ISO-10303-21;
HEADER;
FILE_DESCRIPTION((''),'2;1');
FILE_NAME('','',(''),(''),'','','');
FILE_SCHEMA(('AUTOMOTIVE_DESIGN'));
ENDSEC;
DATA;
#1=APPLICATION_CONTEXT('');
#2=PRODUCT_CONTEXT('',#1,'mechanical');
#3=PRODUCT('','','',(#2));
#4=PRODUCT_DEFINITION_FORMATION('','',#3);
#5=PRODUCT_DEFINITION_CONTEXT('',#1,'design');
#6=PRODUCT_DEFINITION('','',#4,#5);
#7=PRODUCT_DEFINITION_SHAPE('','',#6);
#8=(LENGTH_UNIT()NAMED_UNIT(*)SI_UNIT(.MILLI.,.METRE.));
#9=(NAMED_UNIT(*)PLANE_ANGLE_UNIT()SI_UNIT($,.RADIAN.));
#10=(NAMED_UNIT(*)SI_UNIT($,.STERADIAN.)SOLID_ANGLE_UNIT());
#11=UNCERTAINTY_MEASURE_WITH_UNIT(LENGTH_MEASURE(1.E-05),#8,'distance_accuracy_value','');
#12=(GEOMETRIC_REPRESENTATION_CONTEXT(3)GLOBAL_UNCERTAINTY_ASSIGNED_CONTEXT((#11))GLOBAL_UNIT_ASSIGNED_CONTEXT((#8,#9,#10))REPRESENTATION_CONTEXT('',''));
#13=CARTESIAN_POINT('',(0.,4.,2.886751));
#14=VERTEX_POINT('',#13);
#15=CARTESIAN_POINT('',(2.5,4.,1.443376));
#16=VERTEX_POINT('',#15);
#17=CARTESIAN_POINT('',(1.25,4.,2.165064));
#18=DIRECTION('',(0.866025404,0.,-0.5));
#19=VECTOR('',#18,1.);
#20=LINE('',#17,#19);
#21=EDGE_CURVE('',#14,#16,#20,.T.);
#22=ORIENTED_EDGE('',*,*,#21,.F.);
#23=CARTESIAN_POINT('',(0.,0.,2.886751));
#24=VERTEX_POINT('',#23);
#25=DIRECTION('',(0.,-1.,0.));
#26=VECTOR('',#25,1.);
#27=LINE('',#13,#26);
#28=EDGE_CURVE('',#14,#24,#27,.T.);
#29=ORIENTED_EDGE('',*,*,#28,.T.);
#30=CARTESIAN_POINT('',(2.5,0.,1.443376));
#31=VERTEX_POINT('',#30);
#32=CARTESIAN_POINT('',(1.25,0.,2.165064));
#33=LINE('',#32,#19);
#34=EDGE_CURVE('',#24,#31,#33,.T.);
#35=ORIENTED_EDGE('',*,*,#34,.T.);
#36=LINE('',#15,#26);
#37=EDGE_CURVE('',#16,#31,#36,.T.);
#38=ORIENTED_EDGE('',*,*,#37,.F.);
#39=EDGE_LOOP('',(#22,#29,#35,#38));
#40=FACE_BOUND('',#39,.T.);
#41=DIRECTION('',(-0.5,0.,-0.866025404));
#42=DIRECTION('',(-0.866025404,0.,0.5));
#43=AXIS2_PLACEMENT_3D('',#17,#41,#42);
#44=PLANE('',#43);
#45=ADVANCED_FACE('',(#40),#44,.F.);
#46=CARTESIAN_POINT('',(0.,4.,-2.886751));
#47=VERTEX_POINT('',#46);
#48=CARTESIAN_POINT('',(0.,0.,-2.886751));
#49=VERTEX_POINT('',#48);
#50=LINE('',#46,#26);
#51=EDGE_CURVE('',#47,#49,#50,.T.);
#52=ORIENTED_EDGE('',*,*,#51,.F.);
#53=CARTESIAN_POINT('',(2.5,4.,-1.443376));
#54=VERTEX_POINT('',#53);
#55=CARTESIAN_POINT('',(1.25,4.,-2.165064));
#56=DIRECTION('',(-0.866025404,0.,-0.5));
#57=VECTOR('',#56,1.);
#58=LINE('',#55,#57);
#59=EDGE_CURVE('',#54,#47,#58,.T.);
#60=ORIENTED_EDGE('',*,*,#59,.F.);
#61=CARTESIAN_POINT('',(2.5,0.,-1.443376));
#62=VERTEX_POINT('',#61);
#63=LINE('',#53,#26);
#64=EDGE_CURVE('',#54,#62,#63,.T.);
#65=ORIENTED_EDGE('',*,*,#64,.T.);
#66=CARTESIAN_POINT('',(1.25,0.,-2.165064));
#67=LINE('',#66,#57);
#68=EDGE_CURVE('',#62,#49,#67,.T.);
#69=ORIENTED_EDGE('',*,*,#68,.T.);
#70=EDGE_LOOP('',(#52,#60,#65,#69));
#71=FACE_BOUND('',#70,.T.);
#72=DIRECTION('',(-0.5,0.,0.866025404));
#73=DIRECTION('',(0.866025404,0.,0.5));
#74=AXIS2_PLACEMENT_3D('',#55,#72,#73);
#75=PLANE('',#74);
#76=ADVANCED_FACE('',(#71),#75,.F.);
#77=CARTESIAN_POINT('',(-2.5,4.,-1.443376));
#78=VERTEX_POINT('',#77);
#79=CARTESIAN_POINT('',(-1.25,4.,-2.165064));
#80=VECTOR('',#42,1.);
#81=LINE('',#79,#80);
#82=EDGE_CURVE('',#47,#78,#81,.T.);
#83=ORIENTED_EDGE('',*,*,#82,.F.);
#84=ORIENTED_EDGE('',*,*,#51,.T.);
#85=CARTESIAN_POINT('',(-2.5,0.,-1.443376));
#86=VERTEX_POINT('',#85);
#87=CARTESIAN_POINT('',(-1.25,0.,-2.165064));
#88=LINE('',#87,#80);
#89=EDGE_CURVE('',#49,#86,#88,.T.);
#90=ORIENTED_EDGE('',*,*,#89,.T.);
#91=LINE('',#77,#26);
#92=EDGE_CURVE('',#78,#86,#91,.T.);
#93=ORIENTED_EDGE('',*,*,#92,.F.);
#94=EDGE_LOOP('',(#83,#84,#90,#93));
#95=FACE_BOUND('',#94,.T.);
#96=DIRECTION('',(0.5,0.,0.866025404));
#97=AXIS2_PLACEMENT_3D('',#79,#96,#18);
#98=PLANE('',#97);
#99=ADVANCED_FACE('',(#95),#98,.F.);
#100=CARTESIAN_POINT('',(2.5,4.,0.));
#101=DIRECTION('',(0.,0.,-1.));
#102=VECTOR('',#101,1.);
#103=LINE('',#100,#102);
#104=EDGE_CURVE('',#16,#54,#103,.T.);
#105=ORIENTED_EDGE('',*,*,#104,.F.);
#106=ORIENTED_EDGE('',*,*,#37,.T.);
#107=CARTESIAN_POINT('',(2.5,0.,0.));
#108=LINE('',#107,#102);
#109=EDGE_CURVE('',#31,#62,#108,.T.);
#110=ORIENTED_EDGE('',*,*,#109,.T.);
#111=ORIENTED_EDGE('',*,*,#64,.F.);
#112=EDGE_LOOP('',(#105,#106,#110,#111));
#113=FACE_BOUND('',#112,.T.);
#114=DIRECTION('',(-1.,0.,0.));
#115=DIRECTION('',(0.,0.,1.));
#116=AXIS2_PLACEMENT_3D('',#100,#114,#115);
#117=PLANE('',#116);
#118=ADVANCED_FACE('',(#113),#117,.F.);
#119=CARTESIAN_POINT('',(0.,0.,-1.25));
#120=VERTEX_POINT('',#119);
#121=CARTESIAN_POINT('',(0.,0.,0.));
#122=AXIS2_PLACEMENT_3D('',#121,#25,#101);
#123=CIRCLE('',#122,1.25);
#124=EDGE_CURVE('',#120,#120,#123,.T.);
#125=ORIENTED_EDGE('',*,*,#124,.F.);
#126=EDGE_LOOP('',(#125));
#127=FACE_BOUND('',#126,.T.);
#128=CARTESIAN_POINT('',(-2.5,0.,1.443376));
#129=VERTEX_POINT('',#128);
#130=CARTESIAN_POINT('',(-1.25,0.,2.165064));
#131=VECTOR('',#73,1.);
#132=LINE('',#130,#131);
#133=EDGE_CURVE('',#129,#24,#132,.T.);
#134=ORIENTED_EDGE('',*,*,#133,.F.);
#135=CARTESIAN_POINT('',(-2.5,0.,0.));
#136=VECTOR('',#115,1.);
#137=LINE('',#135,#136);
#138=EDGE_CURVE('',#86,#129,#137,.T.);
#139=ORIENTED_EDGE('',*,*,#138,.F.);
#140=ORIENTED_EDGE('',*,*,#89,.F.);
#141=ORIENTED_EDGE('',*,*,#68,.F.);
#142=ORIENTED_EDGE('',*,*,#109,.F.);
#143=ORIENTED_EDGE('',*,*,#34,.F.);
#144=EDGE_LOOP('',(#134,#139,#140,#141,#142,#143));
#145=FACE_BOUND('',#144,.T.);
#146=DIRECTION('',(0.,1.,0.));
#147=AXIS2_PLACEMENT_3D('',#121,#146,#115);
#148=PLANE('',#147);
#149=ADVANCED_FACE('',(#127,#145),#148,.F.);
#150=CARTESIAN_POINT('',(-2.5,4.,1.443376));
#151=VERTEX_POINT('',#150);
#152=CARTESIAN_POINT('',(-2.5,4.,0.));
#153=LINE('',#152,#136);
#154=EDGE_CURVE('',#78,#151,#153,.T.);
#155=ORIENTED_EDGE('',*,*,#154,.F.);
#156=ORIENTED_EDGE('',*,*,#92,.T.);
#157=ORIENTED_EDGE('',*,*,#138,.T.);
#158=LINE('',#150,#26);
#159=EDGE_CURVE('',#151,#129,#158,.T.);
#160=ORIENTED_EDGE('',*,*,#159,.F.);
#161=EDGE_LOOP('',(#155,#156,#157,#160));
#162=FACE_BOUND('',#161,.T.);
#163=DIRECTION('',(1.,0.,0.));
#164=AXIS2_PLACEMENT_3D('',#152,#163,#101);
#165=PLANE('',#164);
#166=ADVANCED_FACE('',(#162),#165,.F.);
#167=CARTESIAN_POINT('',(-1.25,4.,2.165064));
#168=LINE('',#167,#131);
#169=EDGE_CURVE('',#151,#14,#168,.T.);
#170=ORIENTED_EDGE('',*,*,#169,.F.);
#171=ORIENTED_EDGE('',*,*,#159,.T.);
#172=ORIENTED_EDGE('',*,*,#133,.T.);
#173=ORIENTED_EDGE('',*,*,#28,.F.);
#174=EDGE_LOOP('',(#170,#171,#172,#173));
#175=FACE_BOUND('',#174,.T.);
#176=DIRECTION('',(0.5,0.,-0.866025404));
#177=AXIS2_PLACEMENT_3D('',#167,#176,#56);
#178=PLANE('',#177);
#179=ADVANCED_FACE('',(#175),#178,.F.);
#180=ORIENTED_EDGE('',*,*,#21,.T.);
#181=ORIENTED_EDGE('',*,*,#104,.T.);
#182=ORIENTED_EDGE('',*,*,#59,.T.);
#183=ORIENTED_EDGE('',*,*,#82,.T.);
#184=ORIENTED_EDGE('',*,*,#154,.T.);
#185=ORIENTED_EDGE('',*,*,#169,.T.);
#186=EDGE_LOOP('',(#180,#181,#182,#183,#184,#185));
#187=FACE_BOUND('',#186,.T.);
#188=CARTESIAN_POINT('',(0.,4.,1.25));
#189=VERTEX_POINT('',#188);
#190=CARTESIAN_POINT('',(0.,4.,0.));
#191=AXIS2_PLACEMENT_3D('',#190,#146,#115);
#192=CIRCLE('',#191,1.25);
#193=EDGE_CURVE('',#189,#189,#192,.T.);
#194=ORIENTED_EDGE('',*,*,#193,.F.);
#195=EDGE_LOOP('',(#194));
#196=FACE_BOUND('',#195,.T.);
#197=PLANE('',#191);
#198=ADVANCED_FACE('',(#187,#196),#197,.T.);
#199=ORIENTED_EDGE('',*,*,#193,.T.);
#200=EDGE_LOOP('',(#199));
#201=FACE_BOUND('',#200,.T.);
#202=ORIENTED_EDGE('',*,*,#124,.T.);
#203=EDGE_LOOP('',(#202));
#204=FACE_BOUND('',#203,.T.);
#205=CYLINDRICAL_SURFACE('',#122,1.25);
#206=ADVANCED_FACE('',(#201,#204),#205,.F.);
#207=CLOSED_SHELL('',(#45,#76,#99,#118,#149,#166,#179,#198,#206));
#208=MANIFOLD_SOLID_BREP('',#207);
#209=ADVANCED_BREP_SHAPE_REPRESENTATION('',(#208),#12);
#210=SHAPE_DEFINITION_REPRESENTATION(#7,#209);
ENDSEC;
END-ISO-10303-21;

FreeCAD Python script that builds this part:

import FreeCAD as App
import Part
import Sketcher
Q = App.Units.Quantity

doc = App.newDocument("Part")
params = doc.addObject("Spreadsheet::Sheet", "Params")
for row, (alias, value) in enumerate([
    ("pad1_length", "4 mm"),
    ("sketch2_diameter", "2.5 mm"),
    ("hole_diameter", "2.5 mm"),
    ("hole_depth", "13.5 mm"),
], start=1):
    params.set(f"A{row}", alias)
    params.set(f"B{row}", "=" + value)
    params.setAlias(f"B{row}", alias)

body = doc.addObject("PartDesign::Body", "Body")

# Sketch on XZ plane
sketch1 = body.newObject("Sketcher::SketchObject", "Sketch")
sketch1.AttachmentSupport = (doc.getObject("XZ_Plane"), [""])
sketch1.MapMode = "FlatFace"
sketch1.addGeometry([
    Part.LineSegment(App.Vector(-2.5, 1.4, 0), App.Vector(0, 2.9, 0)),  # 0
    Part.LineSegment(App.Vector(0, 2.9, 0), App.Vector(2.5, 1.4, 0)),  # 1
    Part.LineSegment(App.Vector(2.5, 1.4, 0), App.Vector(2.5, -1.4, 0)),  # 2
    Part.LineSegment(App.Vector(2.5, -1.4, 0), App.Vector(0, -2.9, 0)),  # 3
    Part.LineSegment(App.Vector(0, -2.9, 0), App.Vector(-2.5, -1.4, 0)),  # 4
    Part.LineSegment(App.Vector(-2.5, -1.4, 0), App.Vector(-2.5, 1.4, 0)),  # 5
], False)
sketch1.addConstraint([
    Sketcher.Constraint("Coincident", 0, 2, 1, 1),
    Sketcher.Constraint("Coincident", 1, 2, 2, 1),
    Sketcher.Constraint("Coincident", 2, 2, 3, 1),
    Sketcher.Constraint("Coincident", 3, 2, 4, 1),
    Sketcher.Constraint("Coincident", 4, 2, 5, 1),
    Sketcher.Constraint("Coincident", 5, 2, 0, 1),
    Sketcher.Constraint("Vertical", 2),
    Sketcher.Constraint("Vertical", 5),
    Sketcher.Constraint("Symmetric", 0, 2, 3, 2, -1, 1),
    Sketcher.Constraint("Symmetric", 1, 2, 4, 2, -1, 1),
    Sketcher.Constraint("PointOnObject", 0, 2, -2),
    Sketcher.Constraint("Parallel", 0, 3),
    Sketcher.Constraint("Horizontal", 2, 2, 4, 2),
    Sketcher.Constraint("Angle", 0, Q("30 deg")),
    Sketcher.Constraint("DistanceX", 4, 2, 2, 2, 5.0),
    Sketcher.Constraint("DistanceY", 2, 2, 2, 1, 2.886751),
])
pad1 = body.newObject("PartDesign::Pad", "Pad")
pad1.Profile = sketch1
pad1.setExpression("Length", "Params.pad1_length")
pad1.Reversed = True

# Sketch on XZ plane
sketch2 = body.newObject("Sketcher::SketchObject", "Sketch001")
sketch2.AttachmentSupport = (doc.getObject("XZ_Plane"), [""])
sketch2.MapMode = "FlatFace"
sketch2.addGeometry(Part.Circle(App.Vector(0, 0, 0), App.Vector(0, 0, 1), 1.2), False)
sketch2.addConstraint([
    Sketcher.Constraint("Coincident", 0, 3, -1, 1),
    Sketcher.Constraint("Diameter", 0, 2.5),
])
sketch2.setExpression("Constraints[1]", "Params.sketch2_diameter")
doc.recompute()
hole = body.newObject("PartDesign::Hole", "Hole")
hole.Profile = sketch2
hole.ThreadType = "None"
hole.setExpression("Diameter", "Params.hole_diameter")
hole.DepthType = "Dimension"
hole.setExpression("Depth", "Params.hole_depth")
hole.DrillPoint = "Angled"
hole.DrillPointAngle = 118

doc.recompute()
